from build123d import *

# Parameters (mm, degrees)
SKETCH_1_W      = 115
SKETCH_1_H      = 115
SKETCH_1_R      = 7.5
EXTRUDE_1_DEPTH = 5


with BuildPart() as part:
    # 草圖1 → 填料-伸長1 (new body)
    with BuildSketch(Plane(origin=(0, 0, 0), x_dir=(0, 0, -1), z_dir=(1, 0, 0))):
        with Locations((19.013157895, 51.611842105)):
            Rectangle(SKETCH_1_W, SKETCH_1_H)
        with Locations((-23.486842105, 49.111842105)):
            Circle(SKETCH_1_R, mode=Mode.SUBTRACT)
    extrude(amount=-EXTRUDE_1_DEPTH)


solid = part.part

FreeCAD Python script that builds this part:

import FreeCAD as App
import Part
import Sketcher
from FreeCAD import Vector

doc = App.newDocument("Part")
body = doc.addObject("PartDesign::Body", "Body")

# Sketch on YZ plane
sketch1 = body.newObject("Sketcher::SketchObject", "Sketch")
sketch1.AttachmentSupport = (doc.getObject("YZ_Plane"), [""])
sketch1.MapMode = "FlatFace"
sketch1.addGeometry([
    Part.LineSegment(Vector(109.111842, 38.486842, 0), Vector(-5.888158, 38.486842, 0)),  # 0
    Part.LineSegment(Vector(-5.888158, 38.486842, 0), Vector(-5.888158, -76.513158, 0)),  # 1
    Part.LineSegment(Vector(-5.888158, -76.513158, 0), Vector(109.111842, -76.513158, 0)),  # 2
    Part.LineSegment(Vector(109.111842, -76.513158, 0), Vector(109.111842, 38.486842, 0)),  # 3
    Part.Circle(Vector(49.111842, 23.486842, 0), Vector(0, 0, 1), 7.5),  # 4
], False)
sketch1.addConstraint([
    Sketcher.Constraint("Coincident", 0, 2, 1, 1),
    Sketcher.Constraint("Coincident", 1, 2, 2, 1),
    Sketcher.Constraint("Coincident", 2, 2, 3, 1),
    Sketcher.Constraint("Coincident", 3, 2, 0, 1),
    Sketcher.Constraint("Horizontal", 0),
    Sketcher.Constraint("Vertical", 1),
    Sketcher.Constraint("Horizontal", 2),
    Sketcher.Constraint("Vertical", 3),
    Sketcher.Constraint("Equal", 2, 1),
    Sketcher.Constraint("Diameter", 4, 15.0),
    Sketcher.Constraint("DistanceX", 0, 2, 0, 1, 115.0),
    Sketcher.Constraint("DistanceX", 0, 2, 4, 3, 55.0),
    Sketcher.Constraint("DistanceY", 4, 3, 0, 2, 15.0),
    Sketcher.Constraint("DistanceX", -1, 1, 4, 3, 49.111842),
    Sketcher.Constraint("DistanceY", -1, 1, 4, 3, 23.486842),
])
pad1 = body.newObject("PartDesign::Pad", "Pad")
pad1.Profile = sketch1
pad1.Length = 5
pad1.Reversed = True

doc.recompute()
